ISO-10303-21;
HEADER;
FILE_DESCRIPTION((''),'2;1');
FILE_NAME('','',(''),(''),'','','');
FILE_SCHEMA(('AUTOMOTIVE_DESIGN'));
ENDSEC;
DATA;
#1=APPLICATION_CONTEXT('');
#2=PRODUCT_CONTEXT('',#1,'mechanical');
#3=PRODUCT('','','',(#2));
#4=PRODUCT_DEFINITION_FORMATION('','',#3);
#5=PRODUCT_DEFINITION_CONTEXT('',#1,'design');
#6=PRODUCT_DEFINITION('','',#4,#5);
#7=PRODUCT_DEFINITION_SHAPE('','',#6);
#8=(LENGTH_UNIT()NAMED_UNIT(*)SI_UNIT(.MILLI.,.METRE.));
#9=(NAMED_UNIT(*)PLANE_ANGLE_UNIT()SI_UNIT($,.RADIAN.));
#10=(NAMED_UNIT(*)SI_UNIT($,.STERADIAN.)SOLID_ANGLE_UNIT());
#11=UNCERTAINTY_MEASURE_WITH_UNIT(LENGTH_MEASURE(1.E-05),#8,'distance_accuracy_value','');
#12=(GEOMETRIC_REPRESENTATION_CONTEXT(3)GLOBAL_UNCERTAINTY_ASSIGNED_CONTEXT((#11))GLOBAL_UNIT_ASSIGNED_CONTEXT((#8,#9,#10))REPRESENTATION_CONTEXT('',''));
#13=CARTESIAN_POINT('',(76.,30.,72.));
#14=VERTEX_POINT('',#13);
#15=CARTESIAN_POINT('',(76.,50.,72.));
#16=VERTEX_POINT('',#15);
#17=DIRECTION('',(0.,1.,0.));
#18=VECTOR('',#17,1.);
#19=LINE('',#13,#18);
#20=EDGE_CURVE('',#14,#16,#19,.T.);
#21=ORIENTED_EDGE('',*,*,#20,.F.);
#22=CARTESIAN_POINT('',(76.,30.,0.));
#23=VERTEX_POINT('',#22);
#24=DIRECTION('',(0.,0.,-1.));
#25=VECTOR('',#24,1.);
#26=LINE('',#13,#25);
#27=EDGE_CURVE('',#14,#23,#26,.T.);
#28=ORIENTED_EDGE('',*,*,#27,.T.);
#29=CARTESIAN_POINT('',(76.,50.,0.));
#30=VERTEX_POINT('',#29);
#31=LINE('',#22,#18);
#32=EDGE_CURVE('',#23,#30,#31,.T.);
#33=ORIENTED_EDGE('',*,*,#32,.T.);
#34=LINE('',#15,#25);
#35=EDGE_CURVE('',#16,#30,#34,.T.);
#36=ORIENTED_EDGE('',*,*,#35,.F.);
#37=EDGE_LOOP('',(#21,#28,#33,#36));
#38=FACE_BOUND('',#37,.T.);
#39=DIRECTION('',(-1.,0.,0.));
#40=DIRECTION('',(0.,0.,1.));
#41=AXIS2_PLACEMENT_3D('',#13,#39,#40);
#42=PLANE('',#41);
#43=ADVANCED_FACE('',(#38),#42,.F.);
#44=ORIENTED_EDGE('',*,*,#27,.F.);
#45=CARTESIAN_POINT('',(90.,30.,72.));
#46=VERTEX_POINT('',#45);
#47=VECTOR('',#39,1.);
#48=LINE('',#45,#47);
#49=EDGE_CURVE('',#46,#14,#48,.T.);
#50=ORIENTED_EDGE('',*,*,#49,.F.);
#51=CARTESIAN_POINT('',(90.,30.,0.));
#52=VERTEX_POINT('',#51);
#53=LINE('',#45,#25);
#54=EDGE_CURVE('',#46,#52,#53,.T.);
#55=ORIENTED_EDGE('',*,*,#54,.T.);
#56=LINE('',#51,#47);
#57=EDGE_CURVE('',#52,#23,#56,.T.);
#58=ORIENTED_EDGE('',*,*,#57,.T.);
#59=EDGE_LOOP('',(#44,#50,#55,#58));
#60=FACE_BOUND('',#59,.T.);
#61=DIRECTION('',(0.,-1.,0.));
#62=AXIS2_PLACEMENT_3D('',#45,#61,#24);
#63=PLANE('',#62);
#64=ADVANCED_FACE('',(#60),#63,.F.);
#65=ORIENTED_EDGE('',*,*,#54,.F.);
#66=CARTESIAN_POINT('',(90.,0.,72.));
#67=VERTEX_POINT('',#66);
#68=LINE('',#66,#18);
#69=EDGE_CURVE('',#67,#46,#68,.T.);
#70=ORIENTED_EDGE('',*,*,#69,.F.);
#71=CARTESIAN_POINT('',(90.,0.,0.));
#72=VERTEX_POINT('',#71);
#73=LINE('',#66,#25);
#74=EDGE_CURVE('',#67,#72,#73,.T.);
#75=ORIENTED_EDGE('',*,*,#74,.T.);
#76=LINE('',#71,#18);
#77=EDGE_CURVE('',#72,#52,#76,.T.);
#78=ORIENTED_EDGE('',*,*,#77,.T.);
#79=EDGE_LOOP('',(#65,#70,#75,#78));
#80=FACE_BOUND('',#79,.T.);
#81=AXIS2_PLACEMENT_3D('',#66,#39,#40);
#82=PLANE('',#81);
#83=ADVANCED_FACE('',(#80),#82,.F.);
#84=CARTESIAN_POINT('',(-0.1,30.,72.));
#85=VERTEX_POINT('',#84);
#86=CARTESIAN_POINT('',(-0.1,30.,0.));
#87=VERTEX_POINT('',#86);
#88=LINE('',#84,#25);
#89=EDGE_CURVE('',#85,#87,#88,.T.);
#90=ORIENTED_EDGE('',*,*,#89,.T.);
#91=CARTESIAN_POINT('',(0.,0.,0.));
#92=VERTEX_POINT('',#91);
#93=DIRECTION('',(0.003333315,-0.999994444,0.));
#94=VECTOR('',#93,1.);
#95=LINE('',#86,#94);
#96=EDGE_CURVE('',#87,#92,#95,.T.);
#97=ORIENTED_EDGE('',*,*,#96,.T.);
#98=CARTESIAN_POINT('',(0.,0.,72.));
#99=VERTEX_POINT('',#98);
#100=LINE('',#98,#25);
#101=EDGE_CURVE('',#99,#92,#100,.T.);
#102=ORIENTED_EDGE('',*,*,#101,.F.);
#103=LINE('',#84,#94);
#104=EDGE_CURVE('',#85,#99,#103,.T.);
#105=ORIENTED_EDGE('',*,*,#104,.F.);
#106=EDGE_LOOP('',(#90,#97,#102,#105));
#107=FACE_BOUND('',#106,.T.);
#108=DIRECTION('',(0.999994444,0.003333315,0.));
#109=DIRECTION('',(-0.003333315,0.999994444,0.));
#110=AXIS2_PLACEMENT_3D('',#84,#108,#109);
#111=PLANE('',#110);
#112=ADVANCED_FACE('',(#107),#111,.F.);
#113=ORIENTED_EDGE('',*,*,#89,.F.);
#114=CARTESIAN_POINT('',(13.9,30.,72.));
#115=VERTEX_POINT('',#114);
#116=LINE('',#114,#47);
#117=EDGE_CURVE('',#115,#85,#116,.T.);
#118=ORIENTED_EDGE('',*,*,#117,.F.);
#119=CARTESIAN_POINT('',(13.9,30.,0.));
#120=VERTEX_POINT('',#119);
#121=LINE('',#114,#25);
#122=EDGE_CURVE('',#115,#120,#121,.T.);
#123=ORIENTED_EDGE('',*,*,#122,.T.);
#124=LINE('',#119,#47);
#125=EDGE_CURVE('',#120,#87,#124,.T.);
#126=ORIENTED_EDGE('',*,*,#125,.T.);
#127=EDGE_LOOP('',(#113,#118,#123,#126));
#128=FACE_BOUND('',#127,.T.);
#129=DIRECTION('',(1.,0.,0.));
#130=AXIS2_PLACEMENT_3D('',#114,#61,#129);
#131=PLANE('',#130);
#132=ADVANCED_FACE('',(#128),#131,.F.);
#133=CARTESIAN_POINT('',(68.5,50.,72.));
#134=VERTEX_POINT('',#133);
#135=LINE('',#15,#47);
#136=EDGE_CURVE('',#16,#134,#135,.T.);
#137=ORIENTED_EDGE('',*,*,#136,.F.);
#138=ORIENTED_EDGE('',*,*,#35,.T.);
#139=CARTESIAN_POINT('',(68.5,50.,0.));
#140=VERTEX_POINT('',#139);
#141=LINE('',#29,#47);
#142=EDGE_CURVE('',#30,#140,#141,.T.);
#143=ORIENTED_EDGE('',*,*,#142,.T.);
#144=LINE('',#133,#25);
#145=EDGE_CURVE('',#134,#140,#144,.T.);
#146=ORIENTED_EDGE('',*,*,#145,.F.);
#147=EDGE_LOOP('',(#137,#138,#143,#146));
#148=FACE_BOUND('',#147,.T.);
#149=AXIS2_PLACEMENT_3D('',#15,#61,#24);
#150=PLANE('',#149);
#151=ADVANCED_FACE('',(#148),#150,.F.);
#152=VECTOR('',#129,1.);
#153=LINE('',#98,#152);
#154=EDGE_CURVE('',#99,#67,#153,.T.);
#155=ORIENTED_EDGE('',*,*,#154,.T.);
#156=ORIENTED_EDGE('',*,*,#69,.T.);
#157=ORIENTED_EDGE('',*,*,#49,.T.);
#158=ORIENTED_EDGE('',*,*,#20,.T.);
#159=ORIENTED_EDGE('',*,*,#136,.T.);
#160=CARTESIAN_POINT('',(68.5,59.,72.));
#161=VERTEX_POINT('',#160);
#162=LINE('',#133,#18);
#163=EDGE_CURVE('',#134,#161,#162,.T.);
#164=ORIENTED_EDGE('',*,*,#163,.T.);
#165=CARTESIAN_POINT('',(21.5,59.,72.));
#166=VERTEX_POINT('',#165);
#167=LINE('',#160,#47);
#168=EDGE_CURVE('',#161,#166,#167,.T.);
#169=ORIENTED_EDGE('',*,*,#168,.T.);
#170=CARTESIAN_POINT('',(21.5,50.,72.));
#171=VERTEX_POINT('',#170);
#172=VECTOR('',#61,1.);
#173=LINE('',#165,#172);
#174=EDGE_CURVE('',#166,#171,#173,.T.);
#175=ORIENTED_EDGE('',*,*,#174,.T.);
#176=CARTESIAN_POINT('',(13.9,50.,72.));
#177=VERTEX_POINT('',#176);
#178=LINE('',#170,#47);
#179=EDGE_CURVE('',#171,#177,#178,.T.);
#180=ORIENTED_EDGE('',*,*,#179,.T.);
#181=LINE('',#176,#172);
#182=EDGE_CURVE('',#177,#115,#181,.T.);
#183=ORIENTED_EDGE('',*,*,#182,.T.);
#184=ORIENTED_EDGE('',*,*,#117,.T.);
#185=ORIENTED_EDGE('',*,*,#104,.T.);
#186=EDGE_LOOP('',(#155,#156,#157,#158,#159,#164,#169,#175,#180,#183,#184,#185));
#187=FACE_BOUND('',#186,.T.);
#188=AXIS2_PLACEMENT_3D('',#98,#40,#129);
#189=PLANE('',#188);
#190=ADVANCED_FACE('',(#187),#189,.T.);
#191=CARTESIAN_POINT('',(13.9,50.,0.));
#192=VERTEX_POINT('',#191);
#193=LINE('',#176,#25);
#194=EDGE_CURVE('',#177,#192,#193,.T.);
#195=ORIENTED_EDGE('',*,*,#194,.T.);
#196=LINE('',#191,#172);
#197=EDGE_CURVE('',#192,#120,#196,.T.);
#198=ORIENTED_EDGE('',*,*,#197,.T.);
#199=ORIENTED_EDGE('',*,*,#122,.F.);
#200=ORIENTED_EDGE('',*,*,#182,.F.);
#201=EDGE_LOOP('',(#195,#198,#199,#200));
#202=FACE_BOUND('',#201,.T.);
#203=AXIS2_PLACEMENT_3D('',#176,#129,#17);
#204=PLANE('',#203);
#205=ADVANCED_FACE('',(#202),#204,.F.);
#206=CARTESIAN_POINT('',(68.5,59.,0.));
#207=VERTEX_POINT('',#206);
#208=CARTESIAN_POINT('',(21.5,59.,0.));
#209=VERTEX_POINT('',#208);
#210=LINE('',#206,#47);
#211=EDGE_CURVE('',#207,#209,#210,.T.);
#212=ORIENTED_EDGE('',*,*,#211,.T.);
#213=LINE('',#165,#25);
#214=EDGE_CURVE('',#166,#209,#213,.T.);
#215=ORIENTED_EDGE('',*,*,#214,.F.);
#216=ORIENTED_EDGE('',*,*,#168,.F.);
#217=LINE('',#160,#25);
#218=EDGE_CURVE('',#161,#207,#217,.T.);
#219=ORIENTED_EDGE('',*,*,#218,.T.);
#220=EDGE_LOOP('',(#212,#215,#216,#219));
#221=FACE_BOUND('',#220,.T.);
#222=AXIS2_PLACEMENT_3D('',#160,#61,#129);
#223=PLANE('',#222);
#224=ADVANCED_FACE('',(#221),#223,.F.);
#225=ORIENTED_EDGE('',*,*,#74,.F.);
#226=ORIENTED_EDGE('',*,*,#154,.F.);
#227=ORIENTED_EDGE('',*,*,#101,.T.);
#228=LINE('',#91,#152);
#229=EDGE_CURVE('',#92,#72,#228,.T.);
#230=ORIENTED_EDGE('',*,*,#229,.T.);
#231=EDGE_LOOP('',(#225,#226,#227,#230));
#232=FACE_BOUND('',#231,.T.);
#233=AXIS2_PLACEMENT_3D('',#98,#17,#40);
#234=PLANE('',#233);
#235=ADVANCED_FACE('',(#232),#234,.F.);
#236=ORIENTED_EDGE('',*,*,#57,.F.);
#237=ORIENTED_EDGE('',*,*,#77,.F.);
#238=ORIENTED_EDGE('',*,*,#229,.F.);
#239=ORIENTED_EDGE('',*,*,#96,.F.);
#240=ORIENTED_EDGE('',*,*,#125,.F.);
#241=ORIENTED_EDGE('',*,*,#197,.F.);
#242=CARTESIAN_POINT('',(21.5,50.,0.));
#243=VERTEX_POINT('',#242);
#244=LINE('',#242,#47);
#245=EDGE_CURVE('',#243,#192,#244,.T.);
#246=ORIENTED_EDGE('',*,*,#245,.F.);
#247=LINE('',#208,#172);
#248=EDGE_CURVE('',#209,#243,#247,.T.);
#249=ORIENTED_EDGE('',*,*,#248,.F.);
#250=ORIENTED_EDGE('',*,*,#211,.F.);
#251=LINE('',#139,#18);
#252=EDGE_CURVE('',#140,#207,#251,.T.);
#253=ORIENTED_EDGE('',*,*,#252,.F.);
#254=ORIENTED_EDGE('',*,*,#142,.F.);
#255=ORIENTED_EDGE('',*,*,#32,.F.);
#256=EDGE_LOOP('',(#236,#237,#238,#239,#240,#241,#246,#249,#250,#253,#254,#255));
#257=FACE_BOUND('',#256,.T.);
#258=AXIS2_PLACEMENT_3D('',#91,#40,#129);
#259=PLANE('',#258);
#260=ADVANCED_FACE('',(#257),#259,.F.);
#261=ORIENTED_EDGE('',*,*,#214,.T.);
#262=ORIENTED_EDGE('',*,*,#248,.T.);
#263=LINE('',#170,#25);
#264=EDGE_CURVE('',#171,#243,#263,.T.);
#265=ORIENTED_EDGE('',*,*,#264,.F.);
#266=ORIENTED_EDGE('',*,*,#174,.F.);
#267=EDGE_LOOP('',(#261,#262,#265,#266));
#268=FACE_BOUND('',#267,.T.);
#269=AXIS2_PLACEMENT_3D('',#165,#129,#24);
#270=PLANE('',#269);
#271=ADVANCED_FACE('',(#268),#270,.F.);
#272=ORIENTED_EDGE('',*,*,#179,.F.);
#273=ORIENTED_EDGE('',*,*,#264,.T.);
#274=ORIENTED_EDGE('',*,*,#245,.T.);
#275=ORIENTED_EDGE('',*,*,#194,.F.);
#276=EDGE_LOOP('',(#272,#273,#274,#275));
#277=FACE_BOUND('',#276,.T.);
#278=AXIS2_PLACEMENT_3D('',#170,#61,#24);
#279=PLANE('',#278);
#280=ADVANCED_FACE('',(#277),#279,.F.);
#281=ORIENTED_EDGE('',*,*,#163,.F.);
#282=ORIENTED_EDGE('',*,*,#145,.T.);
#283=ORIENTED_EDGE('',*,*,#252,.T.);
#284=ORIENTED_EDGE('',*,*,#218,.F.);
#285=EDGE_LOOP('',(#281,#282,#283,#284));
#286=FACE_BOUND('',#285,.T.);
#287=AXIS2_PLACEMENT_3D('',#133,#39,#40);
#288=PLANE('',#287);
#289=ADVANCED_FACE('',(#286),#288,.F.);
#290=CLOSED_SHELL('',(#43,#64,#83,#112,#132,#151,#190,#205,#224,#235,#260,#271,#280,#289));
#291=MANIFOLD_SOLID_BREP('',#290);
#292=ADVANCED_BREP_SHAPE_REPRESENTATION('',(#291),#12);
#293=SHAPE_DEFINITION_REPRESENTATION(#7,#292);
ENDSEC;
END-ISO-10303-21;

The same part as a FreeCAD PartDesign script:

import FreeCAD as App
import Part
import Sketcher
from FreeCAD import Vector
Q = App.Units.Quantity

doc = App.newDocument("Part")
body = doc.addObject("PartDesign::Body", "Body")

# Sketch on XY plane
sketch1 = doc.addObject("Sketcher::SketchObject", "Sketch")
body.addObject(sketch1)
sketch1.AttachmentSupport = (doc.XY_Plane, [""])
sketch1.MapMode = "FlatFace"
sketch1.addGeometry([
    Part.LineSegment(Vector(0, 0, 0), Vector(90, 0, 0)),  # 0
    Part.LineSegment(Vector(90, 0, 0), Vector(90, 30, 0)),  # 1
    Part.LineSegment(Vector(90, 30, 0), Vector(76, 30, 0)),  # 2
    Part.LineSegment(Vector(76, 30, 0), Vector(76, 50, 0)),  # 3
    Part.LineSegment(Vector(76, 50, 0), Vector(68, 50, 0)),  # 4
    Part.LineSegment(Vector(68, 50, 0), Vector(68, 59, 0)),  # 5
    Part.LineSegment(Vector(68, 59, 0), Vector(22, 59, 0)),  # 6
    Part.LineSegment(Vector(22, 59, 0), Vector(22, 50, 0)),  # 7
    Part.LineSegment(Vector(22, 50, 0), Vector(14, 50, 0)),  # 8
    Part.LineSegment(Vector(14, 50, 0), Vector(14, 30, 0)),  # 9
    Part.LineSegment(Vector(14, 30, 0), Vector(0, 30, 0)),  # 10
    Part.LineSegment(Vector(0, 30, 0), Vector(0, 0, 0)),  # 11
], False)
sketch1.addConstraint([
    Sketcher.Constraint("Coincident", 0, 2, 1, 1),
    Sketcher.Constraint("Coincident", 1, 2, 2, 1),
    Sketcher.Constraint("Coincident", 2, 2, 3, 1),
    Sketcher.Constraint("Coincident", 3, 2, 4, 1),
    Sketcher.Constraint("Coincident", 4, 2, 5, 1),
    Sketcher.Constraint("Coincident", 5, 2, 6, 1),
    Sketcher.Constraint("Coincident", 6, 2, 7, 1),
    Sketcher.Constraint("Coincident", 7, 2, 8, 1),
    Sketcher.Constraint("Coincident", 8, 2, 9, 1),
    Sketcher.Constraint("Coincident", 9, 2, 10, 1),
    Sketcher.Constraint("Coincident", 10, 2, 11, 1),
    Sketcher.Constraint("Coincident", 11, 2, 0, 1),
    Sketcher.Constraint("Horizontal", 0),
    Sketcher.Constraint("Vertical", 1),
    Sketcher.Constraint("Horizontal", 2),
    Sketcher.Constraint("Vertical", 3),
    Sketcher.Constraint("Horizontal", 4),
    Sketcher.Constraint("Vertical", 5),
    Sketcher.Constraint("Horizontal", 6),
    Sketcher.Constraint("Vertical", 7),
    Sketcher.Constraint("Horizontal", 8),
    Sketcher.Constraint("Vertical", 9),
    Sketcher.Constraint("Horizontal", 10),
    Sketcher.Constraint("Coincident", 11, 2, -1, 1),
    Sketcher.Constraint("Horizontal", 4, 2, 7, 2),
    Sketcher.Constraint("Horizontal", 2, 2, 9, 2),
    Sketcher.Constraint("Equal", 2, 10),
    Sketcher.Constraint("DistanceX", 0, 1, 0, 2, Q("90 mm")),
    Sketcher.Constraint("DistanceX", 2, 2, 2, 1, Q("14 mm")),
    Sketcher.Constraint("DistanceX", 6, 2, 6, 1, Q("47 mm")),
    Sketcher.Constraint("DistanceY", 1, 1, 1, 2, Q("30 mm")),
    Sketcher.Constraint("DistanceY", 3, 1, 3, 2, Q("20 mm")),
    Sketcher.Constraint("DistanceY", 5, 1, 5, 2, Q("9 mm")),
    Sketcher.Constraint("DistanceX", 4, 2, 4, 1, Q("7.5 mm")),
    Sketcher.Constraint("DistanceX", 8, 2, 8, 1, Q("7.6 mm")),
])
pad1 = doc.addObject("PartDesign::Pad", "Pad")
body.addObject(pad1)
pad1.Profile = sketch1
pad1.Length = 72

doc.recompute()
